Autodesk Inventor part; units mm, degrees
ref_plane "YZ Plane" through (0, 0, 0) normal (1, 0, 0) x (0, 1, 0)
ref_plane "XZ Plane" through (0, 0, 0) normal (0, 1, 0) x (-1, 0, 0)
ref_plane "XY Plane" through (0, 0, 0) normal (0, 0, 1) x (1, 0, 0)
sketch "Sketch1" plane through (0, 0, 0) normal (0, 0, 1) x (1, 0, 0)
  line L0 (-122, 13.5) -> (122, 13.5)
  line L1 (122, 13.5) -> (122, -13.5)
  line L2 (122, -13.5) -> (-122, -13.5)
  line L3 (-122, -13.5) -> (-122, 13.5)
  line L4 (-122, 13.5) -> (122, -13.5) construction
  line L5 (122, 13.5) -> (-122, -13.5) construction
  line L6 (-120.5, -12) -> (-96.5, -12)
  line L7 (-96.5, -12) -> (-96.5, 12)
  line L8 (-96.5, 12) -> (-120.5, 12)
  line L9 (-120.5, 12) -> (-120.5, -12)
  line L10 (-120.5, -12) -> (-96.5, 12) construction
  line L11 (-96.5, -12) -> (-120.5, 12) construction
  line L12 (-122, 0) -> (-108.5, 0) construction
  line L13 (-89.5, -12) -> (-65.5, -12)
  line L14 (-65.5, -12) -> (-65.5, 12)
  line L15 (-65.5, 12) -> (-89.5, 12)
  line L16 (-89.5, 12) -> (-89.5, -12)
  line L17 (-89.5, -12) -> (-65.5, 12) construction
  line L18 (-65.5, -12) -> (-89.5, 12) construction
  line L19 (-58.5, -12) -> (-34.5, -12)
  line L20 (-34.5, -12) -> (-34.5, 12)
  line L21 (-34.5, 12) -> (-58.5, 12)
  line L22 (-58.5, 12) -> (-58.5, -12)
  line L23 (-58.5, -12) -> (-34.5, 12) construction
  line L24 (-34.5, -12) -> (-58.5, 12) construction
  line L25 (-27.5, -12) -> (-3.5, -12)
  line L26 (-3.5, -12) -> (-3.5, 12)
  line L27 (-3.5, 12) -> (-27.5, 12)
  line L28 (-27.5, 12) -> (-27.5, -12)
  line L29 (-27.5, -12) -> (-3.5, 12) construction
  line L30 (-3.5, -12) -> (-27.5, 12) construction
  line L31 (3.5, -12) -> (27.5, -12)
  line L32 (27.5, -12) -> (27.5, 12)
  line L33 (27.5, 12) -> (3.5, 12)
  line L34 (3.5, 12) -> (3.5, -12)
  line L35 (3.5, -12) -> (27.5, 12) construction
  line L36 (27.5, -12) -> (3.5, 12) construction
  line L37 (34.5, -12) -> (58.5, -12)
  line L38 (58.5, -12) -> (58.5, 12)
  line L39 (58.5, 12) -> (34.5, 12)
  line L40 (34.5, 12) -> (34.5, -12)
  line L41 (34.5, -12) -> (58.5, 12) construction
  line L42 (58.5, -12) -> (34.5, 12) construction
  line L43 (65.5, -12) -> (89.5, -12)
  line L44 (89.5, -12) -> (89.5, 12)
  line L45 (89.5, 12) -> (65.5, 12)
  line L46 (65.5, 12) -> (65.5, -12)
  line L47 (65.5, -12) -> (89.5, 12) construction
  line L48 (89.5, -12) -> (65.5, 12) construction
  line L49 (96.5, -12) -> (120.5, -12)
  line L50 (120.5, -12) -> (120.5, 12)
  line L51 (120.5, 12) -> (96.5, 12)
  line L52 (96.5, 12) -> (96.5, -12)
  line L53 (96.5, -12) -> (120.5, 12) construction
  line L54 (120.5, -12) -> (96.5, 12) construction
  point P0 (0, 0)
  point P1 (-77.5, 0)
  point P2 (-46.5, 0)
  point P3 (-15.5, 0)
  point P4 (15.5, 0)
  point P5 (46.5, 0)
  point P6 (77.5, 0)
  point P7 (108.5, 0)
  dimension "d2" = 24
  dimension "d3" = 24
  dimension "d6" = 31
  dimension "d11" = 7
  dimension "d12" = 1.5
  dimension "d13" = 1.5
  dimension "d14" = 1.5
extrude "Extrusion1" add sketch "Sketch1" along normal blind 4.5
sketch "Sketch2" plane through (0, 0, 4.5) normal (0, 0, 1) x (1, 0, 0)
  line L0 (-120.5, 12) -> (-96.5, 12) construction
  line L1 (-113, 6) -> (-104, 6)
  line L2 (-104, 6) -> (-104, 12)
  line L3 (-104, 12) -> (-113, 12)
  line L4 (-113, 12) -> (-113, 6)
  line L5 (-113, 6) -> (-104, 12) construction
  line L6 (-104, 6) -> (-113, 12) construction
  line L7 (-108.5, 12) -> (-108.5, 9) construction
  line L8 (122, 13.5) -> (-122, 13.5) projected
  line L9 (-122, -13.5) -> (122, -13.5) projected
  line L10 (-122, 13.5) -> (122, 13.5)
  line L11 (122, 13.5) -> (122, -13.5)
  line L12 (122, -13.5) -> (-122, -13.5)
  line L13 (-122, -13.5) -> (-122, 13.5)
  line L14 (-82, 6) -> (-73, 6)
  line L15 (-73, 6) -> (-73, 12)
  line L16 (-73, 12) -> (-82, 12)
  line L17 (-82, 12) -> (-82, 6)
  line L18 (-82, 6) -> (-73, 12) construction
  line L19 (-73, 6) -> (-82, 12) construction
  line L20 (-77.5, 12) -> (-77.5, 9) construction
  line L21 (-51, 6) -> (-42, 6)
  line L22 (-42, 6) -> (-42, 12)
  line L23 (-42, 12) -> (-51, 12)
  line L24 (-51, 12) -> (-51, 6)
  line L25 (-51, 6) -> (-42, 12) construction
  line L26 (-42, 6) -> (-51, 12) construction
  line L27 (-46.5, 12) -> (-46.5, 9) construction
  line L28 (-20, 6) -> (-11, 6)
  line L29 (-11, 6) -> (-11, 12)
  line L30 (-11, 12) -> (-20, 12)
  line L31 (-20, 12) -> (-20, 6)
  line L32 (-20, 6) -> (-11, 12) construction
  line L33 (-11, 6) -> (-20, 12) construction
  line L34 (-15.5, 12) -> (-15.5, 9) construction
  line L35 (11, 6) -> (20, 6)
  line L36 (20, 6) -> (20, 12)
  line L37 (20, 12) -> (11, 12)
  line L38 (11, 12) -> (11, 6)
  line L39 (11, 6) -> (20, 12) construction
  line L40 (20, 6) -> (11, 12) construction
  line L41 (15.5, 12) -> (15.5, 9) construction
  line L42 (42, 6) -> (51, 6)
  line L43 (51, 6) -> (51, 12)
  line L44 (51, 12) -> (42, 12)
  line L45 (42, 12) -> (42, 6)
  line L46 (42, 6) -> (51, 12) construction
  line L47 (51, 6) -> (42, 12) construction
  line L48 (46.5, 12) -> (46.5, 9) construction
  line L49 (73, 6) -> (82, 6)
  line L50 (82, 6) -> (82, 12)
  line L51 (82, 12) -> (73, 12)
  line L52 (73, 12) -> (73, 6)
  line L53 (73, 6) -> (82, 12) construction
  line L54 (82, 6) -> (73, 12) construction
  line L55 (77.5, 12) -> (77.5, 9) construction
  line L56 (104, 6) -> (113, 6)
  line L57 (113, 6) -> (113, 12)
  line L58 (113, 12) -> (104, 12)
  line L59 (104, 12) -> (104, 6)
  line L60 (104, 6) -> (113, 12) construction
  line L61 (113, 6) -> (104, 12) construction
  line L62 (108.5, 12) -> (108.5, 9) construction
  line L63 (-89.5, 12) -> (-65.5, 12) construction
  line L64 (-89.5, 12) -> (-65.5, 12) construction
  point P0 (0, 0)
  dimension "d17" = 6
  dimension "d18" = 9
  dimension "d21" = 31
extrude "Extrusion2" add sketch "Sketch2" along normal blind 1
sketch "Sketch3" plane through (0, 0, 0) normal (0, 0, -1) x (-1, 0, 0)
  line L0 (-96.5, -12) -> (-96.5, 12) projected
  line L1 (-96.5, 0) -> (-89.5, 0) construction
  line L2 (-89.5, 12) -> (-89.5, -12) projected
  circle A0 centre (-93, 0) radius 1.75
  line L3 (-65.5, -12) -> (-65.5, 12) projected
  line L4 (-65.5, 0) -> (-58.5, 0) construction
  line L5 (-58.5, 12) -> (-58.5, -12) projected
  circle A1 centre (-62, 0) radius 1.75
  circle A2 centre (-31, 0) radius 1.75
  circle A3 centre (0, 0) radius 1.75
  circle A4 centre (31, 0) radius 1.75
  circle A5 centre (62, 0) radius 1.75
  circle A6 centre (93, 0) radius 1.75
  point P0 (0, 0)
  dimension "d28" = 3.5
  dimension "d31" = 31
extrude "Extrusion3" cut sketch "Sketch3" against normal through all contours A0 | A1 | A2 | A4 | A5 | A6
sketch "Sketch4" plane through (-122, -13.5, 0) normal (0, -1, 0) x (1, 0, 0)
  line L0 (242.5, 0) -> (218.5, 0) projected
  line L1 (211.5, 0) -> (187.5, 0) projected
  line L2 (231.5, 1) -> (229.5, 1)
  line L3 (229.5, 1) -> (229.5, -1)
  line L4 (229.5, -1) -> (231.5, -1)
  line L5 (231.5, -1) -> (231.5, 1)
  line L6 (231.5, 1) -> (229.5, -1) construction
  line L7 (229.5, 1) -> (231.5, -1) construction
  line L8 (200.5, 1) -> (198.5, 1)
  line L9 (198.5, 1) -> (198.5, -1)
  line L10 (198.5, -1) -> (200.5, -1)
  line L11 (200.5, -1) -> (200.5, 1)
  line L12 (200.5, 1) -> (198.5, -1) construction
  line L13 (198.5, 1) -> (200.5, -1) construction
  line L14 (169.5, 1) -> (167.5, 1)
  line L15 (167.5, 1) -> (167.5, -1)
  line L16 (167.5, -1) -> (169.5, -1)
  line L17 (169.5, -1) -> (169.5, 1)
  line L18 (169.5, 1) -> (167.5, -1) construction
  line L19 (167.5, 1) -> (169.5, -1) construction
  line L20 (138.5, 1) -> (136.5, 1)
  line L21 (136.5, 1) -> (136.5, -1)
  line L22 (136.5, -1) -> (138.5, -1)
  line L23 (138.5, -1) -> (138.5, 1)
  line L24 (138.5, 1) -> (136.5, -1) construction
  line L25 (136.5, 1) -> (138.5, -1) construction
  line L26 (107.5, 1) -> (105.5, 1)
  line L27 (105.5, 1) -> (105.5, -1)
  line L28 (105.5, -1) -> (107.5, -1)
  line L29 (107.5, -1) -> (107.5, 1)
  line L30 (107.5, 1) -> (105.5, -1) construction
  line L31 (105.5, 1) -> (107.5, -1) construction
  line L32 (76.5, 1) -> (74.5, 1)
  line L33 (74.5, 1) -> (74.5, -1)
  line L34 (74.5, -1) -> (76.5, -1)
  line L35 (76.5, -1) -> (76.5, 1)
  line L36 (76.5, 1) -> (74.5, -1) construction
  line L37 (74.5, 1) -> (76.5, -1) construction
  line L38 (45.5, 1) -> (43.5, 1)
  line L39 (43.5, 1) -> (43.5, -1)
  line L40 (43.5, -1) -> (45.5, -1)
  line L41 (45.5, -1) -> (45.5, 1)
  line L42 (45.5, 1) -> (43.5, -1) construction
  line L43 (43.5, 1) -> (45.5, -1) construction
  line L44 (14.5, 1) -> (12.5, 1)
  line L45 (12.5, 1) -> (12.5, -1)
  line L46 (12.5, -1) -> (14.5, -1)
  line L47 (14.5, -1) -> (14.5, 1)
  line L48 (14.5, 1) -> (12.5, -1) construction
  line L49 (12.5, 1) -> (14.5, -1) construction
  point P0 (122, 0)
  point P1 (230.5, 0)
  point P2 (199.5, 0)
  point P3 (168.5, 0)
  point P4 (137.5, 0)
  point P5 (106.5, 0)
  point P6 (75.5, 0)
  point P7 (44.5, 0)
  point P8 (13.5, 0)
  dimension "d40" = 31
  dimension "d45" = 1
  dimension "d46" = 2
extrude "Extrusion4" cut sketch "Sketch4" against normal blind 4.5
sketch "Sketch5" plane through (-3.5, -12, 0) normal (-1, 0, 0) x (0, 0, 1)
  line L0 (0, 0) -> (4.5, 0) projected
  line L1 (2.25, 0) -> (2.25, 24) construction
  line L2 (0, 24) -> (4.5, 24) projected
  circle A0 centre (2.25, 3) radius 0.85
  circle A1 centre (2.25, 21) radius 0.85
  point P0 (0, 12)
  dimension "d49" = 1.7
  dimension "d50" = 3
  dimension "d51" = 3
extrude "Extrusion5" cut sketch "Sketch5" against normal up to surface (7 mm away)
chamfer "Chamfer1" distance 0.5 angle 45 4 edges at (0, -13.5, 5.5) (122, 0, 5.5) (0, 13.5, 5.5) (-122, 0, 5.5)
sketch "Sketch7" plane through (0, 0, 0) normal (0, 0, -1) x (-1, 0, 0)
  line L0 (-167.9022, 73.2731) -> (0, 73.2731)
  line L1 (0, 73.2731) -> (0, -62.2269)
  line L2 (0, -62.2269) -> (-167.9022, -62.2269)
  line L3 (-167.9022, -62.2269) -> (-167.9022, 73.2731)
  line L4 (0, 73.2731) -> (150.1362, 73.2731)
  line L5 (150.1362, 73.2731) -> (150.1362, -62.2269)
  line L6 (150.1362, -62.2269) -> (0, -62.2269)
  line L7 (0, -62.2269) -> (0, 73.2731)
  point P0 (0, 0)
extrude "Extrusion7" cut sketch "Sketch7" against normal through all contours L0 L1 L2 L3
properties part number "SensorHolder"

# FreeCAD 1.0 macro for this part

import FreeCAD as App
import Part
import Sketcher
Q = App.Units.Quantity


def edges_at(feature, points):
    """Names of the edges that pass closest to the given points."""
    edges = feature.Shape.Edges
    near = lambda p: min(range(len(edges)), key=lambda i: edges[i].distToShape(Part.Vertex(*p))[0])
    return sorted({f"Edge{near(p) + 1}" for p in points})


def add_polygon(sketch, points):
    """Adds a closed chain of lines whose ends are joined by coincident constraints."""
    first, n = sketch.GeometryCount, len(points)
    for a, b in zip(points, points[1:] + points[:1]):
        sketch.addGeometry(Part.LineSegment(App.Vector(*a, 0), App.Vector(*b, 0)), False)
    for i in range(n):
        sketch.addConstraint(Sketcher.Constraint("Coincident", first + i, 2, first + (i + 1) % n, 1))

doc = App.newDocument("Part")
params = doc.addObject("Spreadsheet::Sheet", "Params")
for row, (alias, value) in enumerate([
    ("sketch1_width", "24 mm"),
    ("pad1_length", "4.5 mm"),
    ("sketch2_width", "9 mm"),
    ("sketch2_height", "6 mm"),
    ("sketch2_height2", "27 mm"),
    ("pad2_length", "1 mm"),
    ("sketch3_diameter", "3.5 mm"),
    ("sketch4_width", "2 mm"),
    ("pocket2_length", "4.5 mm"),
    ("sketch5_diameter", "1.7 mm"),
    ("pocket3_length", "7 mm"),
    ("chamfer_size", "0.5 mm"),
    ("sketch6_height", "135.5 mm"),
], start=1):
    params.set(f"A{row}", alias)
    params.set(f"B{row}", "=" + value)
    params.setAlias(f"B{row}", alias)

body = doc.addObject("PartDesign::Body", "Body")

sketch1 = body.newObject("Sketcher::SketchObject", "Sketch")
sketch1.AttachmentSupport = (doc.getObject("XY_Plane"), [""])
sketch1.MapMode = "FlatFace"
add_polygon(sketch1, [(122, 13.5), (-122, 13.5), (-122, -13.5), (122, -13.5)])
add_polygon(sketch1, [(-96.5, -12), (-120.5, -12), (-120.5, 12), (-96.5, 12)])
add_polygon(sketch1, [(-65.5, -12), (-89.5, -12), (-89.5, 12), (-65.5, 12)])
add_polygon(sketch1, [(-34.5, -12), (-58.5, -12), (-58.5, 12), (-34.5, 12)])
add_polygon(sketch1, [(-3.5, -12), (-27.5, -12), (-27.5, 12), (-3.5, 12)])
add_polygon(sketch1, [(27.5, -12), (3.5, -12), (3.5, 12), (27.5, 12)])
add_polygon(sketch1, [(58.5, -12), (34.5, -12), (34.5, 12), (58.5, 12)])
add_polygon(sketch1, [(89.5, -12), (65.5, -12), (65.5, 12), (89.5, 12)])
add_polygon(sketch1, [(120.5, -12), (96.5, -12), (96.5, 12), (120.5, 12)])
sketch1.addConstraint([
    Sketcher.Constraint("Horizontal", 0),
    Sketcher.Constraint("Vertical", 1),
    Sketcher.Constraint("Horizontal", 2),
    Sketcher.Constraint("Vertical", 3),
    Sketcher.Constraint("Horizontal", 4),
    Sketcher.Constraint("Vertical", 5),
    Sketcher.Constraint("Horizontal", 6),
    Sketcher.Constraint("Vertical", 7),
    Sketcher.Constraint("Horizontal", 8),
    Sketcher.Constraint("Vertical", 9),
    Sketcher.Constraint("Horizontal", 10),
    Sketcher.Constraint("Vertical", 11),
    Sketcher.Constraint("Horizontal", 12),
    Sketcher.Constraint("Vertical", 13),
    Sketcher.Constraint("Horizontal", 14),
    Sketcher.Constraint("Vertical", 15),
    Sketcher.Constraint("Horizontal", 16),
    Sketcher.Constraint("Vertical", 17),
    Sketcher.Constraint("Horizontal", 18),
    Sketcher.Constraint("Vertical", 19),
    Sketcher.Constraint("Horizontal", 20),
    Sketcher.Constraint("Vertical", 21),
    Sketcher.Constraint("Horizontal", 22),
    Sketcher.Constraint("Vertical", 23),
    Sketcher.Constraint("Horizontal", 24),
    Sketcher.Constraint("Vertical", 25),
    Sketcher.Constraint("Horizontal", 26),
    Sketcher.Constraint("Vertical", 27),
    Sketcher.Constraint("Horizontal", 28),
    Sketcher.Constraint("Vertical", 29),
    Sketcher.Constraint("Horizontal", 30),
    Sketcher.Constraint("Vertical", 31),
    Sketcher.Constraint("Horizontal", 32),
    Sketcher.Constraint("Vertical", 33),
    Sketcher.Constraint("Horizontal", 34),
    Sketcher.Constraint("Vertical", 35),
    Sketcher.Constraint("Symmetric", 0, 2, 2, 2, -1, 1),
    Sketcher.Constraint("Symmetric", 18, 2, 20, 2, -1, 1),
    Sketcher.Constraint("Symmetric", 16, 2, 22, 2, -1, 1),
    Sketcher.Constraint("Symmetric", 14, 2, 24, 2, -1, 1),
    Sketcher.Constraint("Symmetric", 12, 2, 26, 2, -1, 1),
    Sketcher.Constraint("Symmetric", 10, 2, 28, 2, -1, 1),
    Sketcher.Constraint("Symmetric", 8, 2, 30, 2, -1, 1),
    Sketcher.Constraint("Symmetric", 6, 2, 32, 2, -1, 1),
    Sketcher.Constraint("Symmetric", 4, 2, 34, 2, -1, 1),
    Sketcher.Constraint("Horizontal", 7, 2, 8, 2),
    Sketcher.Constraint("Horizontal", 6, 2, 9, 2),
    Sketcher.Constraint("Horizontal", 11, 2, 12, 2),
    Sketcher.Constraint("Horizontal", 10, 2, 13, 2),
    Sketcher.Constraint("Horizontal", 15, 2, 16, 2),
    Sketcher.Constraint("Horizontal", 14, 2, 17, 2),
    Sketcher.Constraint("Horizontal", 19, 2, 20, 2),
    Sketcher.Constraint("Equal", 6, 8),
    Sketcher.Constraint("Equal", 10, 12),
    Sketcher.Constraint("Equal", 14, 16),
    Sketcher.Constraint("Equal", 34, 5),
    Sketcher.Constraint("DistanceX", 4, 2, 4, 1, Q("24 mm")),
    Sketcher.Constraint("DistanceX", 7, 2, 8, 2, Q("7 mm")),
    Sketcher.Constraint("DistanceX", 11, 2, 12, 2, Q("7 mm")),
    Sketcher.Constraint("DistanceX", 15, 2, 16, 2, Q("7 mm")),
    Sketcher.Constraint("DistanceX", 19, 2, 20, 2, Q("7 mm")),
    Sketcher.Constraint("DistanceX", 1, 2, 4, 2, Q("1.5 mm")),
    Sketcher.Constraint("DistanceY", 1, 2, 4, 2, Q("1.5 mm")),
])
sketch1.setExpression("Constraints[92]", "Params.sketch1_width")
pad1 = body.newObject("PartDesign::Pad", "Pad")
pad1.Profile = sketch1
pad1.setExpression("Length", "Params.pad1_length")

sketch2 = body.newObject("Sketcher::SketchObject", "Sketch001")
sketch2.AttachmentSupport = (doc.getObject("XY_Plane"), [""])
sketch2.MapMode = "FlatFace"
sketch2.AttachmentOffset = App.Placement(App.Vector(0, 0, 4.5), App.Rotation())
add_polygon(sketch2, [(122, -13.5), (122, 13.5), (-122, 13.5), (-122, -13.5)])
add_polygon(sketch2, [(-104, 6), (-113, 6), (-113, 12), (-104, 12)])
add_polygon(sketch2, [(-73, 6), (-82, 6), (-82, 12), (-73, 12)])
add_polygon(sketch2, [(-42, 6), (-51, 6), (-51, 12), (-42, 12)])
add_polygon(sketch2, [(-11, 6), (-20, 6), (-20, 12), (-11, 12)])
add_polygon(sketch2, [(20, 6), (11, 6), (11, 12), (20, 12)])
add_polygon(sketch2, [(51, 6), (42, 6), (42, 12), (51, 12)])
add_polygon(sketch2, [(82, 6), (73, 6), (73, 12), (82, 12)])
add_polygon(sketch2, [(113, 6), (104, 6), (104, 12), (113, 12)])
sketch2.addConstraint([
    Sketcher.Constraint("Vertical", 0),
    Sketcher.Constraint("Horizontal", 1),
    Sketcher.Constraint("Vertical", 2),
    Sketcher.Constraint("Horizontal", 3),
    Sketcher.Constraint("Horizontal", 4),
    Sketcher.Constraint("Vertical", 5),
    Sketcher.Constraint("Horizontal", 6),
    Sketcher.Constraint("Vertical", 7),
    Sketcher.Constraint("Horizontal", 8),
    Sketcher.Constraint("Vertical", 9),
    Sketcher.Constraint("Horizontal", 10),
    Sketcher.Constraint("Vertical", 11),
    Sketcher.Constraint("Horizontal", 12),
    Sketcher.Constraint("Vertical", 13),
    Sketcher.Constraint("Horizontal", 14),
    Sketcher.Constraint("Vertical", 15),
    Sketcher.Constraint("Horizontal", 16),
    Sketcher.Constraint("Vertical", 17),
    Sketcher.Constraint("Horizontal", 18),
    Sketcher.Constraint("Vertical", 19),
    Sketcher.Constraint("Horizontal", 20),
    Sketcher.Constraint("Vertical", 21),
    Sketcher.Constraint("Horizontal", 22),
    Sketcher.Constraint("Vertical", 23),
    Sketcher.Constraint("Horizontal", 24),
    Sketcher.Constraint("Vertical", 25),
    Sketcher.Constraint("Horizontal", 26),
    Sketcher.Constraint("Vertical", 27),
    Sketcher.Constraint("Horizontal", 28),
    Sketcher.Constraint("Vertical", 29),
    Sketcher.Constraint("Horizontal", 30),
    Sketcher.Constraint("Vertical", 31),
    Sketcher.Constraint("Horizontal", 32),
    Sketcher.Constraint("Vertical", 33),
    Sketcher.Constraint("Horizontal", 34),
    Sketcher.Constraint("Vertical", 35),
    Sketcher.Constraint("Symmetric", 0, 2, 2, 2, -1, 1),
    Sketcher.Constraint("Symmetric", 19, 2, 20, 2, -2),
    Sketcher.Constraint("Symmetric", 17, 2, 22, 2, -2),
    Sketcher.Constraint("Symmetric", 15, 2, 24, 2, -2),
    Sketcher.Constraint("Symmetric", 13, 2, 26, 2, -2),
    Sketcher.Constraint("Symmetric", 11, 2, 28, 2, -2),
    Sketcher.Constraint("Symmetric", 9, 2, 30, 2, -2),
    Sketcher.Constraint("Symmetric", 7, 2, 32, 2, -2),
    Sketcher.Constraint("Symmetric", 5, 2, 34, 2, -2),
    Sketcher.Constraint("Horizontal", 7, 2, 8, 2),
    Sketcher.Constraint("Horizontal", 6, 2, 9, 2),
    Sketcher.Constraint("Horizontal", 11, 2, 12, 2),
    Sketcher.Constraint("Horizontal", 10, 2, 13, 2),
    Sketcher.Constraint("Horizontal", 15, 2, 16, 2),
    Sketcher.Constraint("Horizontal", 14, 2, 17, 2),
    Sketcher.Constraint("Equal", 6, 8),
    Sketcher.Constraint("Equal", 10, 12),
    Sketcher.Constraint("Equal", 14, 16),
    Sketcher.Constraint("DistanceX", 4, 2, 4, 1, Q("9 mm")),
    Sketcher.Constraint("DistanceY", 5, 1, 5, 2, Q("6 mm")),
    Sketcher.Constraint("DistanceY", -1, 1, 4, 2, Q("6 mm")),
    Sketcher.Constraint("DistanceX", 1, 2, 4, 2, Q("9 mm")),
    Sketcher.Constraint("DistanceX", 4, 2, 8, 2, Q("31 mm")),
    Sketcher.Constraint("DistanceX", 8, 2, 12, 2, Q("31 mm")),
    Sketcher.Constraint("DistanceX", 12, 2, 16, 2, Q("31 mm")),
    Sketcher.Constraint("DistanceX", 16, 2, 20, 2, Q("31 mm")),
    Sketcher.Constraint("DistanceY", 0, 1, 0, 2, Q("27 mm")),
])
sketch2.setExpression("Constraints[90]", "Params.sketch2_width")
sketch2.setExpression("Constraints[91]", "Params.sketch2_height")
sketch2.setExpression("Constraints[98]", "Params.sketch2_height2")
pad2 = body.newObject("PartDesign::Pad", "Pad001")
pad2.Profile = sketch2
pad2.setExpression("Length", "Params.pad2_length")

sketch3 = body.newObject("Sketcher::SketchObject", "Sketch002")
sketch3.AttachmentSupport = (doc.getObject("XY_Plane"), [""])
sketch3.MapMode = "FlatFace"
sketch3.addGeometry([
    Part.Circle(App.Vector(93, 0, 0), App.Vector(0, 0, 1), 1.75),
    Part.Circle(App.Vector(62, 0, 0), App.Vector(0, 0, 1), 1.75),
    Part.Circle(App.Vector(31, 0, 0), App.Vector(0, 0, 1), 1.75),
    Part.Circle(App.Vector(-31, 0, 0), App.Vector(0, 0, 1), 1.75),
    Part.Circle(App.Vector(-62, 0, 0), App.Vector(0, 0, 1), 1.75),
    Part.Circle(App.Vector(-93, 0, 0), App.Vector(0, 0, 1), 1.75),
], False)
sketch3.addConstraint([
    Sketcher.Constraint("Equal", 0, 1),
    Sketcher.Constraint("Equal", 1, 2),
    Sketcher.Constraint("Equal", 2, 3),
    Sketcher.Constraint("Equal", 3, 4),
    Sketcher.Constraint("Equal", 4, 5),
    Sketcher.Constraint("Symmetric", 2, 3, 3, 3, -1, 1),
    Sketcher.Constraint("Symmetric", 1, 3, 4, 3, -1, 1),
    Sketcher.Constraint("Symmetric", 0, 3, 5, 3, -1, 1),
    Sketcher.Constraint("PointOnObject", 0, 3, -1),
    Sketcher.Constraint("PointOnObject", 1, 3, -1),
    Sketcher.Constraint("PointOnObject", 2, 3, -1),
    Sketcher.Constraint("Diameter", 0, Q("3.5 mm")),
    Sketcher.Constraint("DistanceX", -1, 1, 2, 3, Q("31 mm")),
    Sketcher.Constraint("DistanceX", 1, 3, 0, 3, Q("31 mm")),
    Sketcher.Constraint("DistanceX", 2, 3, 1, 3, Q("31 mm")),
])
sketch3.setExpression("Constraints[11]", "Params.sketch3_diameter")
pocket1 = body.newObject("PartDesign::Pocket", "Pocket")
pocket1.Profile = sketch3
pocket1.Type = "ThroughAll"
pocket1.Reversed = True

sketch4 = body.newObject("Sketcher::SketchObject", "Sketch003")
sketch4.AttachmentSupport = (doc.getObject("XZ_Plane"), [""])
sketch4.MapMode = "FlatFace"
sketch4.AttachmentOffset = App.Placement(App.Vector(0, 0, 13.5), App.Rotation())
add_polygon(sketch4, [(109.5, -1), (109.5, 1), (107.5, 1), (107.5, -1)])
add_polygon(sketch4, [(78.5, -1), (78.5, 1), (76.5, 1), (76.5, -1)])
add_polygon(sketch4, [(47.5, -1), (47.5, 1), (45.5, 1), (45.5, -1)])
add_polygon(sketch4, [(16.5, -1), (16.5, 1), (14.5, 1), (14.5, -1)])
add_polygon(sketch4, [(-14.5, -1), (-14.5, 1), (-16.5, 1), (-16.5, -1)])
add_polygon(sketch4, [(-45.5, -1), (-45.5, 1), (-47.5, 1), (-47.5, -1)])
add_polygon(sketch4, [(-76.5, -1), (-76.5, 1), (-78.5, 1), (-78.5, -1)])
add_polygon(sketch4, [(-107.5, -1), (-107.5, 1), (-109.5, 1), (-109.5, -1)])
sketch4.addConstraint([
    Sketcher.Constraint("Vertical", 0),
    Sketcher.Constraint("Horizontal", 1),
    Sketcher.Constraint("Vertical", 2),
    Sketcher.Constraint("Horizontal", 3),
    Sketcher.Constraint("Vertical", 4),
    Sketcher.Constraint("Horizontal", 5),
    Sketcher.Constraint("Vertical", 6),
    Sketcher.Constraint("Horizontal", 7),
    Sketcher.Constraint("Vertical", 8),
    Sketcher.Constraint("Horizontal", 9),
    Sketcher.Constraint("Vertical", 10),
    Sketcher.Constraint("Horizontal", 11),
    Sketcher.Constraint("Vertical", 12),
    Sketcher.Constraint("Horizontal", 13),
    Sketcher.Constraint("Vertical", 14),
    Sketcher.Constraint("Horizontal", 15),
    Sketcher.Constraint("Vertical", 16),
    Sketcher.Constraint("Horizontal", 17),
    Sketcher.Constraint("Vertical", 18),
    Sketcher.Constraint("Horizontal", 19),
    Sketcher.Constraint("Vertical", 20),
    Sketcher.Constraint("Horizontal", 21),
    Sketcher.Constraint("Vertical", 22),
    Sketcher.Constraint("Horizontal", 23),
    Sketcher.Constraint("Vertical", 24),
    Sketcher.Constraint("Horizontal", 25),
    Sketcher.Constraint("Vertical", 26),
    Sketcher.Constraint("Horizontal", 27),
    Sketcher.Constraint("Vertical", 28),
    Sketcher.Constraint("Horizontal", 29),
    Sketcher.Constraint("Vertical", 30),
    Sketcher.Constraint("Horizontal", 31),
    Sketcher.Constraint("Symmetric", 14, 2, 16, 2, -1, 1),
    Sketcher.Constraint("Symmetric", 12, 2, 18, 2, -1, 1),
    Sketcher.Constraint("Symmetric", 10, 2, 20, 2, -1, 1),
    Sketcher.Constraint("Symmetric", 8, 2, 22, 2, -1, 1),
    Sketcher.Constraint("Symmetric", 6, 2, 24, 2, -1, 1),
    Sketcher.Constraint("Symmetric", 4, 2, 26, 2, -1, 1),
    Sketcher.Constraint("Symmetric", 2, 2, 28, 2, -1, 1),
    Sketcher.Constraint("Symmetric", 0, 2, 30, 2, -1, 1),
    Sketcher.Constraint("Horizontal", 1, 2, 4, 2),
    Sketcher.Constraint("Horizontal", 3, 2, 6, 2),
    Sketcher.Constraint("Horizontal", 5, 2, 8, 2),
    Sketcher.Constraint("Horizontal", 7, 2, 10, 2),
    Sketcher.Constraint("Horizontal", 9, 2, 12, 2),
    Sketcher.Constraint("Horizontal", 11, 2, 14, 2),
    Sketcher.Constraint("Horizontal", 13, 2, 16, 2),
    Sketcher.Constraint("Equal", 3, 5),
    Sketcher.Constraint("Equal", 7, 9),
    Sketcher.Constraint("Equal", 11, 13),
    Sketcher.Constraint("Equal", 31, 0),
    Sketcher.Constraint("DistanceX", 1, 2, 1, 1, Q("2 mm")),
    Sketcher.Constraint("DistanceX", 4, 2, 0, 2, Q("31 mm")),
    Sketcher.Constraint("DistanceX", 8, 2, 4, 2, Q("31 mm")),
    Sketcher.Constraint("DistanceX", 12, 2, 8, 2, Q("31 mm")),
    Sketcher.Constraint("DistanceX", 16, 2, 12, 2, Q("31 mm")),
])
sketch4.setExpression("Constraints[83]", "Params.sketch4_width")
pocket2 = body.newObject("PartDesign::Pocket", "Pocket001")
pocket2.Profile = sketch4
pocket2.setExpression("Length", "Params.pocket2_length")

sketch5 = body.newObject("Sketcher::SketchObject", "Sketch004")
sketch5.AttachmentSupport = (doc.getObject("YZ_Plane"), [""])
sketch5.MapMode = "FlatFace"
sketch5.AttachmentOffset = App.Placement(App.Vector(0, 0, -3.5), App.Rotation())
sketch5.addGeometry([
    Part.Circle(App.Vector(-9, 2.25, 0), App.Vector(0, 0, 1), 0.85),
    Part.Circle(App.Vector(9, 2.25, 0), App.Vector(0, 0, 1), 0.85),
], False)
sketch5.addConstraint([
    Sketcher.Constraint("Equal", 0, 1),
    Sketcher.Constraint("Symmetric", 0, 3, 1, 3, -2),
    Sketcher.Constraint("Diameter", 0, Q("1.7 mm")),
    Sketcher.Constraint("DistanceX", 0, 3, -1, 1, Q("9 mm")),
    Sketcher.Constraint("DistanceY", -1, 1, 0, 3, Q("2.25 mm")),
])
sketch5.setExpression("Constraints[2]", "Params.sketch5_diameter")
pocket3 = body.newObject("PartDesign::Pocket", "Pocket002")
pocket3.Profile = sketch5
pocket3.setExpression("Length", "Params.pocket3_length")
pocket3.Reversed = True
doc.recompute()

chamfer = body.newObject("PartDesign::Chamfer", "Chamfer")
chamfer.Base = (pocket3, edges_at(pocket3, [
    (0, -13.5, 5.5),
    (122, 0, 5.5),
    (0, 13.5, 5.5),
    (-122, 0, 5.5),
]))
chamfer.setExpression("Size", "Params.chamfer_size")

sketch6 = body.newObject("Sketcher::SketchObject", "Sketch005")
sketch6.AttachmentSupport = (doc.getObject("XY_Plane"), [""])
sketch6.MapMode = "FlatFace"
add_polygon(sketch6, [(0, 73.2731), (167.9022, 73.2731), (167.9022, -62.2269), (0, -62.2269)])
sketch6.addConstraint([
    Sketcher.Constraint("Horizontal", 0),
    Sketcher.Constraint("Vertical", 1),
    Sketcher.Constraint("Horizontal", 2),
    Sketcher.Constraint("Vertical", 3),
    Sketcher.Constraint("PointOnObject", 2, 2, -2),
    Sketcher.Constraint("DistanceY", 1, 2, 1, 1, Q("135.5 mm")),
    Sketcher.Constraint("DistanceX", 0, 1, 0, 2, Q("167.9022 mm")),
    Sketcher.Constraint("DistanceY", -1, 1, 0, 2, Q("73.273 mm")),
])
sketch6.setExpression("Constraints[9]", "Params.sketch6_height")
pocket4 = body.newObject("PartDesign::Pocket", "Pocket003")
pocket4.Profile = sketch6
pocket4.Type = "ThroughAll"
pocket4.Reversed = True

doc.recompute()
